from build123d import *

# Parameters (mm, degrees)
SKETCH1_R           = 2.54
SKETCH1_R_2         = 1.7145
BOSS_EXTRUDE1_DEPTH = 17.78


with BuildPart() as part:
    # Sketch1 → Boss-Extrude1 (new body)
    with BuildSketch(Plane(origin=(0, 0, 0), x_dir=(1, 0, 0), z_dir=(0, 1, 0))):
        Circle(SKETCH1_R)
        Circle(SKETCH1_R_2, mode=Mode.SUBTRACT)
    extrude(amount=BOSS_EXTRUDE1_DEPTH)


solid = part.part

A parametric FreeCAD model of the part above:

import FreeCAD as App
import Part
import Sketcher

V = App.Vector
Q = App.Units.Quantity

doc = App.newDocument("Part")
body = doc.addObject("PartDesign::Body", "Body")

# Sketch on XZ plane
sketch1 = body.newObject("Sketcher::SketchObject", "Sketch")
sketch1.AttachmentSupport = (doc.getObject("XZ_Plane"), [""])
sketch1.MapMode = "FlatFace"
sketch1.addGeometry([
    Part.Circle(V(0, 0, 0), V(0, 0, 1), 2.5),
    Part.Circle(V(0, 0, 0), V(0, 0, 1), 1.7),
], False)
sketch1.addConstraint([
    Sketcher.Constraint("Coincident", 0, 3, -1, 1),
    Sketcher.Constraint("Coincident", 1, 3, -1, 1),
    Sketcher.Constraint("Diameter", 0, Q("0.2 in")),
    Sketcher.Constraint("Diameter", 1, Q("0.135 in")),
])
pad1 = body.newObject("PartDesign::Pad", "Pad")
pad1.Profile = sketch1
pad1.Length = Q("0.7 in")
pad1.Reversed = True

doc.recompute()
